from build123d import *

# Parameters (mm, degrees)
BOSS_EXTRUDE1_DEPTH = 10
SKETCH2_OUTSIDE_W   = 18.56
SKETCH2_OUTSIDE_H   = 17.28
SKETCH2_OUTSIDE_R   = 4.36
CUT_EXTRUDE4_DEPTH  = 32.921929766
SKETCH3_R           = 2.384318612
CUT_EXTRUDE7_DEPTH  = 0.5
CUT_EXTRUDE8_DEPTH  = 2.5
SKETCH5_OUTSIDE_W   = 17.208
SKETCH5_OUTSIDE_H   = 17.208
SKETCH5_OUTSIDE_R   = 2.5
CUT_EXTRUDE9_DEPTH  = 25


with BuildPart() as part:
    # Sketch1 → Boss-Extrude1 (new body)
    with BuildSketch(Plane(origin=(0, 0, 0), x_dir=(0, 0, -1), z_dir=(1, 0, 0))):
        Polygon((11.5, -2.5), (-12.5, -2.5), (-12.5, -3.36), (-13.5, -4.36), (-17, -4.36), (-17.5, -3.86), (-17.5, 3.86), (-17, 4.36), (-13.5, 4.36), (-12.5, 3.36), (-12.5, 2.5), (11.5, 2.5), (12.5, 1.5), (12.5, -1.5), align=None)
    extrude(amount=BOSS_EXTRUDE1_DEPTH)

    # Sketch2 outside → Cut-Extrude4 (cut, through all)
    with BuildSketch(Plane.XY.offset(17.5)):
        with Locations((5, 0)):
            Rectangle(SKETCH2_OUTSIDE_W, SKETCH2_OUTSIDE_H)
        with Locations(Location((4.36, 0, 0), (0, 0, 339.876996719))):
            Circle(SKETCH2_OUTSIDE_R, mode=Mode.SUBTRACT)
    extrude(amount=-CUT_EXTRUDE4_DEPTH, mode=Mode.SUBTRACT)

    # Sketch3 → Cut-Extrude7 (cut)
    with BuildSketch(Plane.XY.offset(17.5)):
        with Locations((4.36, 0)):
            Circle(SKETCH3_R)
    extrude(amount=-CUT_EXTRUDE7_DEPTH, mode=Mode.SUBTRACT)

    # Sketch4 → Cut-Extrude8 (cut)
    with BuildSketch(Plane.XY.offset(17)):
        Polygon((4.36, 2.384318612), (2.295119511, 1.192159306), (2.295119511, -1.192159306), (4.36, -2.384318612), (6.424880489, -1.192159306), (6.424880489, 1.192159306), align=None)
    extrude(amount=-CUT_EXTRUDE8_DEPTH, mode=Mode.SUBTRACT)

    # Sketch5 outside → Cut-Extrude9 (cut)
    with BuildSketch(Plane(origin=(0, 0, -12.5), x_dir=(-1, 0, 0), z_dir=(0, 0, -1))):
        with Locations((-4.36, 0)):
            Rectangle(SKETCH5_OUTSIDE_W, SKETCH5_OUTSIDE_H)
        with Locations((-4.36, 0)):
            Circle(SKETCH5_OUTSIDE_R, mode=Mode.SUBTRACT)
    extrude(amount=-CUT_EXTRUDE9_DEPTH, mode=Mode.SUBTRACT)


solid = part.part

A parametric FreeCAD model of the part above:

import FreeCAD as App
import Part
import Sketcher
Q = App.Units.Quantity


def add_polygon(sketch, points):
    """Adds a closed chain of lines whose ends are joined by coincident constraints."""
    first, n = sketch.GeometryCount, len(points)
    for a, b in zip(points, points[1:] + points[:1]):
        sketch.addGeometry(Part.LineSegment(App.Vector(*a, 0), App.Vector(*b, 0)), False)
    for i in range(n):
        sketch.addConstraint(Sketcher.Constraint("Coincident", first + i, 2, first + (i + 1) % n, 1))

doc = App.newDocument("Part")
body = doc.addObject("PartDesign::Body", "Body")

# Sketch on YZ plane
sketch1 = body.newObject("Sketcher::SketchObject", "Sketch")
sketch1.AttachmentSupport = (doc.getObject("YZ_Plane"), [""])
sketch1.MapMode = "FlatFace"
add_polygon(sketch1, [(-2.5, 12.5), (-2.5, -11.5), (-1.5, -12.5), (1.5, -12.5), (2.5, -11.5), (2.5, 12.5), (3.4, 12.5), (4.4, 13.5), (4.4, 17), (3.9, 17.5), (-3.9, 17.5), (-4.4, 17), (-4.4, 13.5), (-3.4, 12.5)])  # lines 0-13
sketch1.addConstraint(Sketcher.Constraint("Vertical", 0))
sketch1.addConstraint(Sketcher.Constraint("Horizontal", 2))
sketch1.addConstraint(Sketcher.Constraint("Vertical", 4))
sketch1.addConstraint(Sketcher.Constraint("Horizontal", 5))
sketch1.addConstraint(Sketcher.Constraint("Vertical", 7))
sketch1.addConstraint(Sketcher.Constraint("Horizontal", 9))
sketch1.addConstraint(Sketcher.Constraint("Vertical", 11))
sketch1.addConstraint(Sketcher.Constraint("Horizontal", 13))
sketch1.addConstraint(Sketcher.Constraint("Symmetric", 0, 2, 3, 2, -2))
sketch1.addConstraint(Sketcher.Constraint("Symmetric", 7, 2, 10, 2, -2))
sketch1.addConstraint(Sketcher.Constraint("Symmetric", 5, 2, 12, 2, -2))
sketch1.addConstraint(Sketcher.Constraint("Perpendicular", 1, 3))
sketch1.addConstraint(Sketcher.Constraint("Parallel", 3, 6))
sketch1.addConstraint(Sketcher.Constraint("Perpendicular", 6, 8))
sketch1.addConstraint(Sketcher.Constraint("Perpendicular", 8, 10))
sketch1.addConstraint(Sketcher.Constraint("Perpendicular", 10, 12))
sketch1.addConstraint(Sketcher.Constraint("Horizontal", 6, 2, 11, 2))
sketch1.addConstraint(Sketcher.Constraint("Equal", 3, 6))
sketch1.addConstraint(Sketcher.Constraint("DistanceX", 2, 1, 2, 2, Q("3 mm")))
sketch1.addConstraint(Sketcher.Constraint("DistanceY", 0, 2, 0, 1, Q("24 mm")))
sketch1.addConstraint(Sketcher.Constraint("DistanceY", 7, 1, 7, 2, Q("3.5 mm")))
sketch1.addConstraint(Sketcher.Constraint("DistanceY", -1, 1, 7, 2, Q("17 mm")))
sketch1.addConstraint(Sketcher.Constraint("DistanceX", 0, 2, 1, 2, Q("1 mm")))
sketch1.addConstraint(Sketcher.Constraint("DistanceY", 6, 2, 8, 2, Q("4 mm")))
sketch1.addConstraint(Sketcher.Constraint("DistanceX", 5, 1, 5, 2, Q("0.86 mm")))
pad1 = body.newObject("PartDesign::Pad", "Pad")
pad1.Profile = sketch1
pad1.Length = 10

# Sketch on XY plane
sketch2 = body.newObject("Sketcher::SketchObject", "Sketch001")
sketch2.AttachmentSupport = (doc.getObject("XY_Plane"), [""])
sketch2.MapMode = "FlatFace"
sketch2.AttachmentOffset = App.Placement(App.Vector(0, 0, 17.5), App.Rotation())
add_polygon(sketch2, [(-4.3, 8.6), (-4.3, -8.6), (14.3, -8.6), (14.3, 8.6)])  # lines 0-3
sketch2.addGeometry(Part.Circle(App.Vector(4.4, 0, 0), App.Vector(0, 0, 1), 4.4), False)  # 4
sketch2.addConstraint(Sketcher.Constraint("Vertical", 0))
sketch2.addConstraint(Sketcher.Constraint("Horizontal", 1))
sketch2.addConstraint(Sketcher.Constraint("Vertical", 2))
sketch2.addConstraint(Sketcher.Constraint("Horizontal", 3))
sketch2.addConstraint(Sketcher.Constraint("PointOnObject", 4, 3, -1))
sketch2.addConstraint(Sketcher.Constraint("Diameter", 4, Q("8.72 mm")))
sketch2.addConstraint(Sketcher.Constraint("DistanceX", 1, 1, 1, 2, Q("18.56 mm")))
sketch2.addConstraint(Sketcher.Constraint("DistanceY", 0, 2, 0, 1, Q("17.28 mm")))
sketch2.addConstraint(Sketcher.Constraint("DistanceX", -1, 1, 4, 3, Q("4.36 mm")))
sketch2.addConstraint(Sketcher.Constraint("DistanceX", 0, 2, -1, 1, Q("4.28 mm")))
sketch2.addConstraint(Sketcher.Constraint("DistanceY", 0, 2, -1, 1, Q("8.64 mm")))
pocket1 = body.newObject("PartDesign::Pocket", "Pocket")
pocket1.Profile = sketch2
pocket1.Type = "ThroughAll"

# Sketch on XY plane
sketch3 = body.newObject("Sketcher::SketchObject", "Sketch002")
sketch3.AttachmentSupport = (doc.getObject("XY_Plane"), [""])
sketch3.MapMode = "FlatFace"
sketch3.AttachmentOffset = App.Placement(App.Vector(0, 0, 17.5), App.Rotation())
sketch3.addGeometry(Part.Circle(App.Vector(4.4, 0, 0), App.Vector(0, 0, 1), 2.4), False)
sketch3.addConstraint(Sketcher.Constraint("PointOnObject", 0, 3, -1))
sketch3.addConstraint(Sketcher.Constraint("DistanceX", -1, 1, 0, 3, Q("4.36 mm")))
sketch3.addConstraint(Sketcher.Constraint("Diameter", 0, Q("4.768637 mm")))
pocket2 = body.newObject("PartDesign::Pocket", "Pocket001")
pocket2.Profile = sketch3
pocket2.Length = 0.5

# Sketch on XY plane
sketch4 = body.newObject("Sketcher::SketchObject", "Sketch003")
sketch4.AttachmentSupport = (doc.getObject("XY_Plane"), [""])
sketch4.MapMode = "FlatFace"
sketch4.AttachmentOffset = App.Placement(App.Vector(0, 0, 17), App.Rotation())
add_polygon(sketch4, [(4.4, 2.4), (2.3, 1.2), (2.3, -1.2), (4.4, -2.4), (6.4, -1.2), (6.4, 1.2)])  # lines 0-5
sketch4.addConstraint(Sketcher.Constraint("Vertical", 1))
sketch4.addConstraint(Sketcher.Constraint("Vertical", 4))
sketch4.addConstraint(Sketcher.Constraint("Symmetric", 2, 2, 5, 2, -1))
sketch4.addConstraint(Sketcher.Constraint("Parallel", 0, 3))
sketch4.addConstraint(Sketcher.Constraint("Parallel", 2, 5))
sketch4.addConstraint(Sketcher.Constraint("Horizontal", 1, 2, 3, 2))
sketch4.addConstraint(Sketcher.Constraint("Horizontal", 0, 2, 4, 2))
sketch4.addConstraint(Sketcher.Constraint("Angle", 0, Q("-150 deg")))
sketch4.addConstraint(Sketcher.Constraint("DistanceX", -1, 1, 2, 2, Q("4.36 mm")))
sketch4.addConstraint(Sketcher.Constraint("DistanceY", 1, 2, 1, 1, Q("2.384319 mm")))
sketch4.addConstraint(Sketcher.Constraint("Distance", 0, Q("2.384319 mm")))
pocket3 = body.newObject("PartDesign::Pocket", "Pocket002")
pocket3.Profile = sketch4
pocket3.Length = 2.5

# Sketch on XY plane
sketch5 = body.newObject("Sketcher::SketchObject", "Sketch004")
sketch5.AttachmentSupport = (doc.getObject("XY_Plane"), [""])
sketch5.MapMode = "FlatFace"
sketch5.AttachmentOffset = App.Placement(App.Vector(0, 0, -12.5), App.Rotation())
add_polygon(sketch5, [(13, 8.6), (13, -8.6), (-4.2, -8.6), (-4.2, 8.6)])  # lines 0-3
sketch5.addGeometry(Part.Circle(App.Vector(4.4, 0, 0), App.Vector(0, 0, 1), 2.5), False)  # 4
sketch5.addConstraint(Sketcher.Constraint("Vertical", 0))
sketch5.addConstraint(Sketcher.Constraint("Horizontal", 1))
sketch5.addConstraint(Sketcher.Constraint("Vertical", 2))
sketch5.addConstraint(Sketcher.Constraint("Horizontal", 3))
sketch5.addConstraint(Sketcher.Constraint("PointOnObject", 4, 3, -1))
sketch5.addConstraint(Sketcher.Constraint("Equal", 3, 0))
sketch5.addConstraint(Sketcher.Constraint("Diameter", 4, Q("5 mm")))
sketch5.addConstraint(Sketcher.Constraint("DistanceX", 1, 2, 1, 1, Q("17.208 mm")))
sketch5.addConstraint(Sketcher.Constraint("DistanceX", -1, 1, 4, 3, Q("4.36 mm")))
sketch5.addConstraint(Sketcher.Constraint("DistanceX", -1, 1, 0, 2, Q("12.964 mm")))
sketch5.addConstraint(Sketcher.Constraint("DistanceY", 0, 2, -1, 1, Q("8.604 mm")))
pocket4 = body.newObject("PartDesign::Pocket", "Pocket003")
pocket4.Profile = sketch5
pocket4.Length = 25
pocket4.Reversed = True

doc.recompute()
